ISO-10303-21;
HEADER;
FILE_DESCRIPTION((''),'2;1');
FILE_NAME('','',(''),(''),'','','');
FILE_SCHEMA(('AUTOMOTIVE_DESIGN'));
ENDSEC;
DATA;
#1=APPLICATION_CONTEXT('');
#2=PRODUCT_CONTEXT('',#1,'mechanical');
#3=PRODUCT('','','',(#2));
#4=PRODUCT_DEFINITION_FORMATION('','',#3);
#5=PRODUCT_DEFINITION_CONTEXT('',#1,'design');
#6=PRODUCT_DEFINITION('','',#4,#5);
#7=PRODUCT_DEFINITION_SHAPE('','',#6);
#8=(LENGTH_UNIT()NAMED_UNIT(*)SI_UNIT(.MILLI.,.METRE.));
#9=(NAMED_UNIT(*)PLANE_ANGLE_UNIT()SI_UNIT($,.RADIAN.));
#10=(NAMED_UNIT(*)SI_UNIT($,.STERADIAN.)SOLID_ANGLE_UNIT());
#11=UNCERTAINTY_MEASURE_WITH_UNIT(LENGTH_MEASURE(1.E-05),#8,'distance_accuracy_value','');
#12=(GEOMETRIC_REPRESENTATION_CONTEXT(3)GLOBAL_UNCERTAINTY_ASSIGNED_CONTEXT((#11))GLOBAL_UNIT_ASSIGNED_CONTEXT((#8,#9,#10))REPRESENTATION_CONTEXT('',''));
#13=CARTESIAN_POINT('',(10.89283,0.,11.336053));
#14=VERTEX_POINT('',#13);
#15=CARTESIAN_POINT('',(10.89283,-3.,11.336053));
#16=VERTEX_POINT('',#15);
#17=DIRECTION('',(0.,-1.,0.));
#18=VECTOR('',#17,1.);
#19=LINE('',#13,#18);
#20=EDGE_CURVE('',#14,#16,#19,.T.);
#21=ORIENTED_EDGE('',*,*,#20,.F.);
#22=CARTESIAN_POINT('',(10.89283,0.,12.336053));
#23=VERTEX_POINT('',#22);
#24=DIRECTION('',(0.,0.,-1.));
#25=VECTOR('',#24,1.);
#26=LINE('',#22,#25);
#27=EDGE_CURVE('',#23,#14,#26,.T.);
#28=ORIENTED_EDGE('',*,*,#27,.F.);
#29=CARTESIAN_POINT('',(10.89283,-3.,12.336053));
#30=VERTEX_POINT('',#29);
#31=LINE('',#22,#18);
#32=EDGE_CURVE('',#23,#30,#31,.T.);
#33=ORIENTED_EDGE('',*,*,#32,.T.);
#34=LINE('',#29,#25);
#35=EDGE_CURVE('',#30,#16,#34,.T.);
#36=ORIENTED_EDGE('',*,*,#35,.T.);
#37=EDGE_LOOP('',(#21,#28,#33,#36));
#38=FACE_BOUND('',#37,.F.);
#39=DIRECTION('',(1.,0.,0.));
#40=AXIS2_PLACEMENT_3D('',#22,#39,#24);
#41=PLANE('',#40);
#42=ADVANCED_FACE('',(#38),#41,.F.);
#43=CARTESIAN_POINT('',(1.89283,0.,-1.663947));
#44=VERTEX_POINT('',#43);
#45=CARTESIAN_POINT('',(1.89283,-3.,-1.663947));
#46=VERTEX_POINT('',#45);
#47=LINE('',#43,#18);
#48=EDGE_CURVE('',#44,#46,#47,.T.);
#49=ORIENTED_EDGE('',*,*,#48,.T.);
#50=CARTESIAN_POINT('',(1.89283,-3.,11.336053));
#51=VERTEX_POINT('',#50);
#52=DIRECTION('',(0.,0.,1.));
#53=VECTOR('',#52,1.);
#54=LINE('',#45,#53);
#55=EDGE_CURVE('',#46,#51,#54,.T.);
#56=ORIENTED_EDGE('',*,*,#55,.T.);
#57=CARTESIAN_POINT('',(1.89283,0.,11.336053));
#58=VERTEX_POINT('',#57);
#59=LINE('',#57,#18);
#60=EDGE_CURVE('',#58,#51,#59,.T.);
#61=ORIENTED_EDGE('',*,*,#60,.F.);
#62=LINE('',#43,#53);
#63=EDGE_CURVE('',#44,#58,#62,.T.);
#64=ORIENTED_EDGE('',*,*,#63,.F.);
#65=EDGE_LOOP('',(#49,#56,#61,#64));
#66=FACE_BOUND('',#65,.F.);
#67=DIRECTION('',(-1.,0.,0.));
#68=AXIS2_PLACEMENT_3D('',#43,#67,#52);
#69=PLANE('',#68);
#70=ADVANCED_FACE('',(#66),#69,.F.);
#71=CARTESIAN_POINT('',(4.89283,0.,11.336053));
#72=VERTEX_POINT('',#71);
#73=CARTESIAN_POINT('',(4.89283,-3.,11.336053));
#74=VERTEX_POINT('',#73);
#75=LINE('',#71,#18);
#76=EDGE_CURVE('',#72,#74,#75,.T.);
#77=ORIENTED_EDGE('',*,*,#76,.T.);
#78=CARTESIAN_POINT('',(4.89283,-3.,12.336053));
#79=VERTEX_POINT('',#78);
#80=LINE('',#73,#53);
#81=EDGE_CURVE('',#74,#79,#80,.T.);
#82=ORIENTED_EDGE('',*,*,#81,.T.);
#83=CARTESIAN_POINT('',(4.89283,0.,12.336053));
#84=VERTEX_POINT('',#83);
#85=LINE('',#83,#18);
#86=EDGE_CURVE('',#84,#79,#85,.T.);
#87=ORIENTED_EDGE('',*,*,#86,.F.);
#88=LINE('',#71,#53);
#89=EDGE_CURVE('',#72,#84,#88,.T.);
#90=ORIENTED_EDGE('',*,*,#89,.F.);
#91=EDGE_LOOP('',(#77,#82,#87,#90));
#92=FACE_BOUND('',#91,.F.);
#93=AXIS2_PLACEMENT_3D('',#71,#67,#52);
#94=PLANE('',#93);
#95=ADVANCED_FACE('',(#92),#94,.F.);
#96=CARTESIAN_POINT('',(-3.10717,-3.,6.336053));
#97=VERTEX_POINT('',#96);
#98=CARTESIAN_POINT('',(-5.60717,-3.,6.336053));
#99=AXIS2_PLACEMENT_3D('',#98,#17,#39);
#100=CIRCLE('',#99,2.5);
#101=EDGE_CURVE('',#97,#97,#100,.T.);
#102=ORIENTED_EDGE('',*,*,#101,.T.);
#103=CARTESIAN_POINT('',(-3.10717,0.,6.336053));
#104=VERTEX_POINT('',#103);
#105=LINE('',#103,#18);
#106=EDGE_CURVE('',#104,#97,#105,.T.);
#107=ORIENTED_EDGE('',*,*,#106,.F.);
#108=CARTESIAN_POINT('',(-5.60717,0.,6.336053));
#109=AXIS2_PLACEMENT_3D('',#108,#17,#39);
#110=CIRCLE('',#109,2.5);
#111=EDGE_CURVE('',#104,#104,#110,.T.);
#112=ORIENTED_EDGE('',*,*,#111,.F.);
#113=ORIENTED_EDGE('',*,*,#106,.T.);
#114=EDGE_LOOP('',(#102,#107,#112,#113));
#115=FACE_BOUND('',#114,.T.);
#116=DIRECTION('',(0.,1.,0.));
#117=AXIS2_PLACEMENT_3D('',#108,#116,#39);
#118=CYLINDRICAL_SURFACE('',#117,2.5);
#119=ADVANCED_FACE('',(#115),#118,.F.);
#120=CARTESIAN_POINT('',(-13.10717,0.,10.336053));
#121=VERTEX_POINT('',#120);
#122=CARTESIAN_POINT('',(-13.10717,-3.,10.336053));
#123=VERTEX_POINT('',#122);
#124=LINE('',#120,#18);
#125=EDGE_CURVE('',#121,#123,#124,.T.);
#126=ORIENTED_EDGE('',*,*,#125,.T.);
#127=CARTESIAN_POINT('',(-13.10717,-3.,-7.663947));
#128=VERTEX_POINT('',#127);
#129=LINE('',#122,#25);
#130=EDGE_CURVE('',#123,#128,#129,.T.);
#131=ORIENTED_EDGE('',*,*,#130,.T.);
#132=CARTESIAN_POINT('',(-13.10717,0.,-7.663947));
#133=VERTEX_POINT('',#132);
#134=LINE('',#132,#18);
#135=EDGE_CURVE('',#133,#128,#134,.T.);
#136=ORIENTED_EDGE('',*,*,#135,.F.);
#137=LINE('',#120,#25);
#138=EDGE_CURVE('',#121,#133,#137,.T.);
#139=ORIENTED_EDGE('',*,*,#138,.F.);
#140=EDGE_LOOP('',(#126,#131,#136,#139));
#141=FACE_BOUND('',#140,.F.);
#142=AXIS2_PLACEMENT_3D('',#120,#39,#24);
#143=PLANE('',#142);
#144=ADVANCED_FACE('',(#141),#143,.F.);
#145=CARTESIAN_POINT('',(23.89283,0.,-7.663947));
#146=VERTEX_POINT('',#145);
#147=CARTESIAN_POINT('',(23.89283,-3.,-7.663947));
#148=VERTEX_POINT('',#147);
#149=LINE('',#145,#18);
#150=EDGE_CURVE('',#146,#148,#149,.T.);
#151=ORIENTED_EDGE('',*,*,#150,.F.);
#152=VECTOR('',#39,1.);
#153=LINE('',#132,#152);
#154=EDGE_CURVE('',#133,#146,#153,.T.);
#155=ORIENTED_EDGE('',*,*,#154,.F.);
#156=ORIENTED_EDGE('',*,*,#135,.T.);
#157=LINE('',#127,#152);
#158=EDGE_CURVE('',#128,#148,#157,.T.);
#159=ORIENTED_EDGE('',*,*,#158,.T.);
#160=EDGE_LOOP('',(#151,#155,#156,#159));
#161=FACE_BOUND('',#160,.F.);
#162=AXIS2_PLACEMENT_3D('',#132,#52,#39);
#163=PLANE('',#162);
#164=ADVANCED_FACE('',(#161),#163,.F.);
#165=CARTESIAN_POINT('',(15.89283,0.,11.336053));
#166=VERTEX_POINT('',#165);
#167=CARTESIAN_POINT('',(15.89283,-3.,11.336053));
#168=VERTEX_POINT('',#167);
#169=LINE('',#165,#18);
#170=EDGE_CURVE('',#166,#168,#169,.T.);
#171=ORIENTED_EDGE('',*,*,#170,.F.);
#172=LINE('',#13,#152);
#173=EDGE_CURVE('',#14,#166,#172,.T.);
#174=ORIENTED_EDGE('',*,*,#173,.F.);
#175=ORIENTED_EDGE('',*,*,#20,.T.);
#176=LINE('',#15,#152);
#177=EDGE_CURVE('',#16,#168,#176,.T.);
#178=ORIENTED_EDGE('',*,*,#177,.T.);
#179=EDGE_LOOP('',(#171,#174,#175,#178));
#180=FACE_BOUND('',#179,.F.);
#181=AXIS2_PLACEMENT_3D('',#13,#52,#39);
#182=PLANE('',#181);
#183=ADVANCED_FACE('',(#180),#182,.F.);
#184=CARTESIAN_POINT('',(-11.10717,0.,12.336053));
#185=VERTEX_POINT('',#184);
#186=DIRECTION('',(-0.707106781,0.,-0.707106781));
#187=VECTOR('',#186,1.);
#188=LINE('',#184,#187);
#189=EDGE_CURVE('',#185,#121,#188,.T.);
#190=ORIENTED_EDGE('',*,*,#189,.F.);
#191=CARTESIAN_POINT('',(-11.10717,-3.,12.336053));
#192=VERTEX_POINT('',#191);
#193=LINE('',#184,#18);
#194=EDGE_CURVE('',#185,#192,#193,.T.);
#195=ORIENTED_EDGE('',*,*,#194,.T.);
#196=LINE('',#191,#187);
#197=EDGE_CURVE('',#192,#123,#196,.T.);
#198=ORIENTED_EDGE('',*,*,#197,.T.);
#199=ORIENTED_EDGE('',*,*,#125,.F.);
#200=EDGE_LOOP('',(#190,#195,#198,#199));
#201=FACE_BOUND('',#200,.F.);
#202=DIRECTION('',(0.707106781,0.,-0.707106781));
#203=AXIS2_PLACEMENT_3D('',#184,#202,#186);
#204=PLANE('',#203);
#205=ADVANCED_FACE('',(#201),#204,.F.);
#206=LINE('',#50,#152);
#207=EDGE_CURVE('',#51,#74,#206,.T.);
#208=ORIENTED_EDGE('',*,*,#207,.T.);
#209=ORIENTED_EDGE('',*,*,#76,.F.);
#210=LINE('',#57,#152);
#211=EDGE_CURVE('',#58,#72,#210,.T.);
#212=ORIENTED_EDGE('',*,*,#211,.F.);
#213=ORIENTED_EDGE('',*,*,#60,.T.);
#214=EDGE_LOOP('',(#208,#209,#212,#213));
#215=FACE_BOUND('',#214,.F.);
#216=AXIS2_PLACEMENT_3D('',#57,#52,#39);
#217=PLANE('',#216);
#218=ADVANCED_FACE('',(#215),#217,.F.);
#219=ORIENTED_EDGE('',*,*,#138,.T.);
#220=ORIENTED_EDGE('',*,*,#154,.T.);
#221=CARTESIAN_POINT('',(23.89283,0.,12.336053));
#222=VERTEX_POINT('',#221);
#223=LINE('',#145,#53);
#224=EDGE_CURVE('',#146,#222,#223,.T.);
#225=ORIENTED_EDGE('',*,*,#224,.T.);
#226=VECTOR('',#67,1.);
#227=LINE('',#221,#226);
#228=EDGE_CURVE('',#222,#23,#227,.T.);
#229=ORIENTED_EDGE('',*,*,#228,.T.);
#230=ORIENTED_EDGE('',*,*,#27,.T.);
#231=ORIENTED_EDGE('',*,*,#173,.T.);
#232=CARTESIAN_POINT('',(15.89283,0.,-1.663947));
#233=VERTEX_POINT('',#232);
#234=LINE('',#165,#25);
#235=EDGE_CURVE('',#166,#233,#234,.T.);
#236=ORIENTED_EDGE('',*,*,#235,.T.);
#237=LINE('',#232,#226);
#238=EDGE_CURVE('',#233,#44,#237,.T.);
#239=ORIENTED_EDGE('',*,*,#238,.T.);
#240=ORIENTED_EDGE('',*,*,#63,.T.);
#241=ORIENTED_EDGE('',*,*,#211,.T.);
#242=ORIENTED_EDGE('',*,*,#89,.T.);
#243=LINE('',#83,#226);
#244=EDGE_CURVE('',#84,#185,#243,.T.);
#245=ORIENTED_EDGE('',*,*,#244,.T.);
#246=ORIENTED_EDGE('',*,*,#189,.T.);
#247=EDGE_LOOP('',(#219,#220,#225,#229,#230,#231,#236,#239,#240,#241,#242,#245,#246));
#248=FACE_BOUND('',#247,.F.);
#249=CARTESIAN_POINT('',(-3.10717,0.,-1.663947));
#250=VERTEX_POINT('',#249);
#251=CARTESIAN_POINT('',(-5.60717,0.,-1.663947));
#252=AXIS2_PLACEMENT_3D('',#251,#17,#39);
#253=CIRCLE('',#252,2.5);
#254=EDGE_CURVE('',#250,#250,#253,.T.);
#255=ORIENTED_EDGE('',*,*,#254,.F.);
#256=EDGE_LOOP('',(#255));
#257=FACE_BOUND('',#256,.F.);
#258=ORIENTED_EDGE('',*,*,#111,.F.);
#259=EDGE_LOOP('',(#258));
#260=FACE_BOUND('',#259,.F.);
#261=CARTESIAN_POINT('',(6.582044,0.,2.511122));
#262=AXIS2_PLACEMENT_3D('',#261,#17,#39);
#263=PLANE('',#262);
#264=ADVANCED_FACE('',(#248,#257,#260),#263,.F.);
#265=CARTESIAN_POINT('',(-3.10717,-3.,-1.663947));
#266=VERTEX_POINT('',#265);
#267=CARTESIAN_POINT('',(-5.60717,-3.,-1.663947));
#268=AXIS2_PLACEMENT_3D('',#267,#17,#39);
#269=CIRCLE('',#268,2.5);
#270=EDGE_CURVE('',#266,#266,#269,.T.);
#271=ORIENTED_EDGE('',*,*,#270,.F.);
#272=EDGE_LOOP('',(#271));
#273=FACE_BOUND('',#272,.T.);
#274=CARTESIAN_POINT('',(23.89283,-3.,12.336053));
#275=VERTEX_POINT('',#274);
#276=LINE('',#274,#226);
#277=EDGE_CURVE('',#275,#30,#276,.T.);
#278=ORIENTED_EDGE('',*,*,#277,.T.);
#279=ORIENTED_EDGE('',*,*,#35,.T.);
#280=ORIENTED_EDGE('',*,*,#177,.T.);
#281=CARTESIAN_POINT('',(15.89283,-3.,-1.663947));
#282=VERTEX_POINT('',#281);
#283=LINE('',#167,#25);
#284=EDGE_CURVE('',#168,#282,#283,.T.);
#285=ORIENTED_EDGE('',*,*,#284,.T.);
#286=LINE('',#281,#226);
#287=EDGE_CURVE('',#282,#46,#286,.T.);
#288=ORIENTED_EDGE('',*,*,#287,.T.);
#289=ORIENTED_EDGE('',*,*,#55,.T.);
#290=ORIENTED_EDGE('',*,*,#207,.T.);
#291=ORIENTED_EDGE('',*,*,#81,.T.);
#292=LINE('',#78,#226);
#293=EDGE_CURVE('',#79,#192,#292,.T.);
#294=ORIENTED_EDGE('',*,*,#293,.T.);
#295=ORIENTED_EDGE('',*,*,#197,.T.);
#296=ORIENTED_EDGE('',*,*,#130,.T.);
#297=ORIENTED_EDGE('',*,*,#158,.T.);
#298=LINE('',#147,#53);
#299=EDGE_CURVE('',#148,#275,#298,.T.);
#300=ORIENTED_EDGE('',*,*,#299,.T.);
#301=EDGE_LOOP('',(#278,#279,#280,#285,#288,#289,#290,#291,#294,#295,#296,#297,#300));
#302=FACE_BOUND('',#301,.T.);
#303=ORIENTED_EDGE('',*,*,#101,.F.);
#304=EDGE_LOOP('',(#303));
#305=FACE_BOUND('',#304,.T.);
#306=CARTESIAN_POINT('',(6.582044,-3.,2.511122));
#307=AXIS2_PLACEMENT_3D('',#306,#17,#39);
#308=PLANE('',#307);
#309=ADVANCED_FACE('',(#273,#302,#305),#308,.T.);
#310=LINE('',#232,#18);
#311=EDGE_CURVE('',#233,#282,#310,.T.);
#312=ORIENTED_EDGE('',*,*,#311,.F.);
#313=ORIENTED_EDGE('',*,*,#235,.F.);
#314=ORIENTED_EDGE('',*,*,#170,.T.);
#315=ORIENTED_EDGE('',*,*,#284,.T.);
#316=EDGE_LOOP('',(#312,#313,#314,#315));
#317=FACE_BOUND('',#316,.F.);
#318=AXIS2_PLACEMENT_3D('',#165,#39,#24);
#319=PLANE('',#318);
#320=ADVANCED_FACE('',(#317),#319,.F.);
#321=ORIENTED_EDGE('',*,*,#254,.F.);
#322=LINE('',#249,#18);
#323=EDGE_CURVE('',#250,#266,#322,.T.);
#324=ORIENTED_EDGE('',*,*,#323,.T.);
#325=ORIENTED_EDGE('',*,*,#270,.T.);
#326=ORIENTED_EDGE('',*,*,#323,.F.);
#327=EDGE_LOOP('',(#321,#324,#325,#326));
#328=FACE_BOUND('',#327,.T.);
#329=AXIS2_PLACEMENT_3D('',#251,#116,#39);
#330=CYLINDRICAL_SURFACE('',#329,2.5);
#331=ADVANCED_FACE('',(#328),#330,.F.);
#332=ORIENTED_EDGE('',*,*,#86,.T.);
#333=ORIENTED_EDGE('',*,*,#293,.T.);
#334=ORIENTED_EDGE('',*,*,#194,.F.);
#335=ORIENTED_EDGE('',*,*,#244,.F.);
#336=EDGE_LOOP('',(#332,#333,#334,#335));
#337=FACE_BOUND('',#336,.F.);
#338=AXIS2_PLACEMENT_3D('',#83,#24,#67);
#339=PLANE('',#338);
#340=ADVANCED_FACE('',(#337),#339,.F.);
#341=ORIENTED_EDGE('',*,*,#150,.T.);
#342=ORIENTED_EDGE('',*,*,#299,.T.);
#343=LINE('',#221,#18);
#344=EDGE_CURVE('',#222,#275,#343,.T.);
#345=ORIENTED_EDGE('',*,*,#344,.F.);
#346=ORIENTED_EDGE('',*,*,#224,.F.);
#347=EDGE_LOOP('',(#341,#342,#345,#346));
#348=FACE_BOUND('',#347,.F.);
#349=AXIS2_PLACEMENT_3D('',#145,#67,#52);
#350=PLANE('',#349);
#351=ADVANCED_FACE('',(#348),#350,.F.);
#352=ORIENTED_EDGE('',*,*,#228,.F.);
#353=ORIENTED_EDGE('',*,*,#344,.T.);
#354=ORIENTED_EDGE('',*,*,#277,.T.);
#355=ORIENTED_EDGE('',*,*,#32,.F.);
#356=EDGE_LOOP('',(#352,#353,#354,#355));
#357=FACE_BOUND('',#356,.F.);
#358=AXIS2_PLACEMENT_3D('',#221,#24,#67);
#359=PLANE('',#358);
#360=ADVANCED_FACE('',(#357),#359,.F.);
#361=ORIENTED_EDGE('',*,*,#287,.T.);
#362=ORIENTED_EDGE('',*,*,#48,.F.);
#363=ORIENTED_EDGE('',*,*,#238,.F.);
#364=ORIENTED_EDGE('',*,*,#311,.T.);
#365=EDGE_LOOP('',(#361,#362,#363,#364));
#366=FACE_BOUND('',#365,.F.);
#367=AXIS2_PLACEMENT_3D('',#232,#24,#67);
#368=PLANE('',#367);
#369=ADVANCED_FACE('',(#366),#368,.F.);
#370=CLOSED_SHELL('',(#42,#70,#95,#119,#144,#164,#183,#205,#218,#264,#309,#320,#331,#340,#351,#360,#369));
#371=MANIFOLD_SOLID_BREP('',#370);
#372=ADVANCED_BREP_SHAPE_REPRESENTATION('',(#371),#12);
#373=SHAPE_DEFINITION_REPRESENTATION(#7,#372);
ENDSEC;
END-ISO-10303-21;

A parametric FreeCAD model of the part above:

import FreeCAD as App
import Part
import Sketcher

doc = App.newDocument("Part")
params = doc.addObject("Spreadsheet::Sheet", "Params")
for row, (alias, value) in enumerate([
    ("sketch1_diameter", "5 mm"),
    ("sketch1_width", "16 mm"),
    ("sketch1_width2", "37 mm"),
    ("sketch1_width3", "13 mm"),
    ("sketch1_width4", "5 mm"),
    ("pad1_length", "3 mm"),
], start=1):
    params.set(f"A{row}", alias)
    params.set(f"B{row}", "=" + value)
    params.setAlias(f"B{row}", alias)

body = doc.addObject("PartDesign::Body", "Body")

# Sketch on XZ plane
sketch1 = body.newObject("Sketcher::SketchObject", "Sketch")
sketch1.AttachmentSupport = (doc.getObject("XZ_Plane"), [""])
sketch1.MapMode = "FlatFace"
sketch1.addGeometry(Part.LineSegment(App.Vector(4.9, 12.3, 0), App.Vector(-11.1, 12.3, 0)), False)
sketch1.addGeometry(Part.LineSegment(App.Vector(-11.1, 12.3, 0), App.Vector(-13.1, 10.3, 0)), False)
sketch1.addGeometry(Part.LineSegment(App.Vector(-13.1, 10.3, 0), App.Vector(-13.1, -7.7, 0)), False)
sketch1.addGeometry(Part.LineSegment(App.Vector(-13.1, -7.7, 0), App.Vector(23.9, -7.7, 0)), False)
sketch1.addGeometry(Part.LineSegment(App.Vector(23.9, -7.7, 0), App.Vector(23.9, 12.3, 0)), False)
sketch1.addGeometry(Part.LineSegment(App.Vector(23.9, 12.3, 0), App.Vector(10.9, 12.3, 0)), False)
sketch1.addGeometry(Part.LineSegment(App.Vector(10.9, 12.3, 0), App.Vector(10.9, 11.3, 0)), False)
sketch1.addGeometry(Part.LineSegment(App.Vector(10.9, 11.3, 0), App.Vector(15.9, 11.3, 0)), False)
sketch1.addGeometry(Part.LineSegment(App.Vector(15.9, 11.3, 0), App.Vector(15.9, -1.7, 0)), False)
sketch1.addGeometry(Part.LineSegment(App.Vector(15.9, -1.7, 0), App.Vector(1.9, -1.7, 0)), False)
sketch1.addGeometry(Part.LineSegment(App.Vector(1.9, -1.7, 0), App.Vector(1.9, 11.3, 0)), False)
sketch1.addGeometry(Part.LineSegment(App.Vector(1.9, 11.3, 0), App.Vector(4.9, 11.3, 0)), False)
sketch1.addGeometry(Part.LineSegment(App.Vector(4.9, 11.3, 0), App.Vector(4.9, 12.3, 0)), False)
sketch1.addGeometry(Part.Circle(App.Vector(-5.6, -1.7, 0), App.Vector(0, 0, 1), 2.5), False)
sketch1.addGeometry(Part.Circle(App.Vector(-5.6, 6.3, 0), App.Vector(0, 0, 1), 2.5), False)
sketch1.addConstraint(Sketcher.Constraint("Coincident", 0, 2, 1, 1))
sketch1.addConstraint(Sketcher.Constraint("Coincident", 1, 2, 2, 1))
sketch1.addConstraint(Sketcher.Constraint("Coincident", 2, 2, 3, 1))
sketch1.addConstraint(Sketcher.Constraint("Coincident", 3, 2, 4, 1))
sketch1.addConstraint(Sketcher.Constraint("Coincident", 4, 2, 5, 1))
sketch1.addConstraint(Sketcher.Constraint("Coincident", 5, 2, 6, 1))
sketch1.addConstraint(Sketcher.Constraint("Coincident", 6, 2, 7, 1))
sketch1.addConstraint(Sketcher.Constraint("Coincident", 7, 2, 8, 1))
sketch1.addConstraint(Sketcher.Constraint("Coincident", 8, 2, 9, 1))
sketch1.addConstraint(Sketcher.Constraint("Coincident", 9, 2, 10, 1))
sketch1.addConstraint(Sketcher.Constraint("Coincident", 10, 2, 11, 1))
sketch1.addConstraint(Sketcher.Constraint("Coincident", 11, 2, 12, 1))
sketch1.addConstraint(Sketcher.Constraint("Coincident", 12, 2, 0, 1))
sketch1.addConstraint(Sketcher.Constraint("Horizontal", 0))
sketch1.addConstraint(Sketcher.Constraint("Vertical", 2))
sketch1.addConstraint(Sketcher.Constraint("Horizontal", 3))
sketch1.addConstraint(Sketcher.Constraint("Vertical", 4))
sketch1.addConstraint(Sketcher.Constraint("Horizontal", 5))
sketch1.addConstraint(Sketcher.Constraint("Vertical", 6))
sketch1.addConstraint(Sketcher.Constraint("Horizontal", 7))
sketch1.addConstraint(Sketcher.Constraint("Vertical", 8))
sketch1.addConstraint(Sketcher.Constraint("Horizontal", 9))
sketch1.addConstraint(Sketcher.Constraint("Vertical", 10))
sketch1.addConstraint(Sketcher.Constraint("Horizontal", 11))
sketch1.addConstraint(Sketcher.Constraint("Vertical", 12))
sketch1.addConstraint(Sketcher.Constraint("Equal", 13, 14))
sketch1.addConstraint(Sketcher.Constraint("Horizontal", 0, 2, 4, 2))
sketch1.addConstraint(Sketcher.Constraint("Horizontal", 13, 3, 8, 2))
sketch1.addConstraint(Sketcher.Constraint("Horizontal", 7, 2, 10, 2))
sketch1.addConstraint(Sketcher.Constraint("Vertical", 13, 3, 14, 3))
sketch1.addConstraint(Sketcher.Constraint("Equal", 5, 8))
sketch1.addConstraint(Sketcher.Constraint("Diameter", 13, 5.0))
sketch1.addConstraint(Sketcher.Constraint("DistanceX", 0, 2, 0, 1, 16.0))
sketch1.addConstraint(Sketcher.Constraint("DistanceX", 3, 1, 3, 2, 37.0))
sketch1.addConstraint(Sketcher.Constraint("DistanceX", 5, 2, 5, 1, 13.0))
sketch1.addConstraint(Sketcher.Constraint("DistanceX", 7, 1, 7, 2, 5.0))
sketch1.addConstraint(Sketcher.Constraint("DistanceX", 9, 2, 9, 1, 14.0))
sketch1.addConstraint(Sketcher.Constraint("DistanceX", 11, 1, 11, 2, 3.0))
sketch1.addConstraint(Sketcher.Constraint("DistanceY", 2, 2, 2, 1, 18.0))
sketch1.addConstraint(Sketcher.Constraint("DistanceY", 4, 1, 4, 2, 20.0))
sketch1.addConstraint(Sketcher.Constraint("DistanceY", 6, 2, 6, 1, 1.0))
sketch1.addConstraint(Sketcher.Constraint("DistanceY", 13, 3, 14, 3, 8.0))
sketch1.addConstraint(Sketcher.Constraint("DistanceX", 0, 2, 14, 3, 5.5))
sketch1.addConstraint(Sketcher.Constraint("DistanceX", 13, 3, -1, 1, 5.60717))
sketch1.addConstraint(Sketcher.Constraint("DistanceY", 13, 3, -1, 1, 1.663947))
sketch1.setExpression("Constraints[31]", "Params.sketch1_diameter")
sketch1.setExpression("Constraints[32]", "Params.sketch1_width")
sketch1.setExpression("Constraints[33]", "Params.sketch1_width2")
sketch1.setExpression("Constraints[34]", "Params.sketch1_width3")
sketch1.setExpression("Constraints[35]", "Params.sketch1_width4")
pad1 = body.newObject("PartDesign::Pad", "Pad")
pad1.Profile = sketch1
pad1.setExpression("Length", "Params.pad1_length")

doc.recompute()
